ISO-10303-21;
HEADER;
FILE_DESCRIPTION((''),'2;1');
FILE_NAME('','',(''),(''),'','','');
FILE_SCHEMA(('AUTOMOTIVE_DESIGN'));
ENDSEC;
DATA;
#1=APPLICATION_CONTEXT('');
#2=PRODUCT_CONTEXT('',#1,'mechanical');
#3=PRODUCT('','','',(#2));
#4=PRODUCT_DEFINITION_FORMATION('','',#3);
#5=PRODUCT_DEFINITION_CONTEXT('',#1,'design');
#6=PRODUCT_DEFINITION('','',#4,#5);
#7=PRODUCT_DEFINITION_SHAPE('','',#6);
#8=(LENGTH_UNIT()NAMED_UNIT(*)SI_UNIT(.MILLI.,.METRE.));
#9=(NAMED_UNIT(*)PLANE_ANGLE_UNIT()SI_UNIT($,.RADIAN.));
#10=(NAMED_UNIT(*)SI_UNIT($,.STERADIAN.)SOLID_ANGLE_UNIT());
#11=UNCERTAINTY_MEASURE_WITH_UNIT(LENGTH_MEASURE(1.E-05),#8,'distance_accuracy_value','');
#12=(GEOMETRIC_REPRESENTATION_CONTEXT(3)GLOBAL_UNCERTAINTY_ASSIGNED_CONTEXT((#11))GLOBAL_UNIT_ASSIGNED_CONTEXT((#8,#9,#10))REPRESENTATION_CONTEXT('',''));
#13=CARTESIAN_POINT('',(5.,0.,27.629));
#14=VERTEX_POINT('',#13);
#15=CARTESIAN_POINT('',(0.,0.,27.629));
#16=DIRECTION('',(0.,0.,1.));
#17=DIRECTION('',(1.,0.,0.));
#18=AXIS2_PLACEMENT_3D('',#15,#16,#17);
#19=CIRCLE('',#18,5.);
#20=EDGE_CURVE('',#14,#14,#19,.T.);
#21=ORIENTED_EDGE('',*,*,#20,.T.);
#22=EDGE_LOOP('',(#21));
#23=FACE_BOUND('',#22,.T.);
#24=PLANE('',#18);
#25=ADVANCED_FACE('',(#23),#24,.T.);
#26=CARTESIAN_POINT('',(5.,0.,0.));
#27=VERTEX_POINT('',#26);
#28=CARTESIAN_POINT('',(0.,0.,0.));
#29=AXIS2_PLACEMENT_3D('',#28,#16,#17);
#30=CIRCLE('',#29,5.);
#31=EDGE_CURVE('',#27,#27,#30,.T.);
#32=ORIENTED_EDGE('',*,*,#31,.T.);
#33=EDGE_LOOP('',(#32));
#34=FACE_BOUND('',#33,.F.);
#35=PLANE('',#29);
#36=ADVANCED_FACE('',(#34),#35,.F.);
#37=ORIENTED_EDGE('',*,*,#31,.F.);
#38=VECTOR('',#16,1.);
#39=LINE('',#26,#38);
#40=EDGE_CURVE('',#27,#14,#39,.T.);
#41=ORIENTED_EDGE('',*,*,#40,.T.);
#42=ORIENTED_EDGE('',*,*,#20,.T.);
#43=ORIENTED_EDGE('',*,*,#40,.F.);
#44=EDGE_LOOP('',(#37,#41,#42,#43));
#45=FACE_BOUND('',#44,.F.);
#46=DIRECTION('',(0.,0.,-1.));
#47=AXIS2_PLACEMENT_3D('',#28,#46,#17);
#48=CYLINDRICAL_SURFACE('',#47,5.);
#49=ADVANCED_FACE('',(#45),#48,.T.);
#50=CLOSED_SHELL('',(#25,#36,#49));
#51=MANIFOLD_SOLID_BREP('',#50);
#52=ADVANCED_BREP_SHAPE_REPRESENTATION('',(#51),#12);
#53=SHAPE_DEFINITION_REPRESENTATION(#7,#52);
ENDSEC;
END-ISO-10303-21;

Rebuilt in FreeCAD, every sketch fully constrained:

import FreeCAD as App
import Part
import Sketcher
Q = App.Units.Quantity

doc = App.newDocument("Part")
body = doc.addObject("PartDesign::Body", "Body")

sketch1 = body.newObject("Sketcher::SketchObject", "Sketch")
sketch1.AttachmentSupport = (doc.getObject("XY_Plane"), [""])
sketch1.MapMode = "FlatFace"
sketch1.addGeometry(Part.Circle(App.Vector(0, 0, 0), App.Vector(0, 0, 1), 5), False)
sketch1.addConstraint([
    Sketcher.Constraint("Coincident", 0, 3, -1, 1),
    Sketcher.Constraint("Diameter", 0, Q("10 mm")),
])
pad1 = body.newObject("PartDesign::Pad", "Pad")
pad1.Profile = sketch1
pad1.Length = 27.629

doc.recompute()
